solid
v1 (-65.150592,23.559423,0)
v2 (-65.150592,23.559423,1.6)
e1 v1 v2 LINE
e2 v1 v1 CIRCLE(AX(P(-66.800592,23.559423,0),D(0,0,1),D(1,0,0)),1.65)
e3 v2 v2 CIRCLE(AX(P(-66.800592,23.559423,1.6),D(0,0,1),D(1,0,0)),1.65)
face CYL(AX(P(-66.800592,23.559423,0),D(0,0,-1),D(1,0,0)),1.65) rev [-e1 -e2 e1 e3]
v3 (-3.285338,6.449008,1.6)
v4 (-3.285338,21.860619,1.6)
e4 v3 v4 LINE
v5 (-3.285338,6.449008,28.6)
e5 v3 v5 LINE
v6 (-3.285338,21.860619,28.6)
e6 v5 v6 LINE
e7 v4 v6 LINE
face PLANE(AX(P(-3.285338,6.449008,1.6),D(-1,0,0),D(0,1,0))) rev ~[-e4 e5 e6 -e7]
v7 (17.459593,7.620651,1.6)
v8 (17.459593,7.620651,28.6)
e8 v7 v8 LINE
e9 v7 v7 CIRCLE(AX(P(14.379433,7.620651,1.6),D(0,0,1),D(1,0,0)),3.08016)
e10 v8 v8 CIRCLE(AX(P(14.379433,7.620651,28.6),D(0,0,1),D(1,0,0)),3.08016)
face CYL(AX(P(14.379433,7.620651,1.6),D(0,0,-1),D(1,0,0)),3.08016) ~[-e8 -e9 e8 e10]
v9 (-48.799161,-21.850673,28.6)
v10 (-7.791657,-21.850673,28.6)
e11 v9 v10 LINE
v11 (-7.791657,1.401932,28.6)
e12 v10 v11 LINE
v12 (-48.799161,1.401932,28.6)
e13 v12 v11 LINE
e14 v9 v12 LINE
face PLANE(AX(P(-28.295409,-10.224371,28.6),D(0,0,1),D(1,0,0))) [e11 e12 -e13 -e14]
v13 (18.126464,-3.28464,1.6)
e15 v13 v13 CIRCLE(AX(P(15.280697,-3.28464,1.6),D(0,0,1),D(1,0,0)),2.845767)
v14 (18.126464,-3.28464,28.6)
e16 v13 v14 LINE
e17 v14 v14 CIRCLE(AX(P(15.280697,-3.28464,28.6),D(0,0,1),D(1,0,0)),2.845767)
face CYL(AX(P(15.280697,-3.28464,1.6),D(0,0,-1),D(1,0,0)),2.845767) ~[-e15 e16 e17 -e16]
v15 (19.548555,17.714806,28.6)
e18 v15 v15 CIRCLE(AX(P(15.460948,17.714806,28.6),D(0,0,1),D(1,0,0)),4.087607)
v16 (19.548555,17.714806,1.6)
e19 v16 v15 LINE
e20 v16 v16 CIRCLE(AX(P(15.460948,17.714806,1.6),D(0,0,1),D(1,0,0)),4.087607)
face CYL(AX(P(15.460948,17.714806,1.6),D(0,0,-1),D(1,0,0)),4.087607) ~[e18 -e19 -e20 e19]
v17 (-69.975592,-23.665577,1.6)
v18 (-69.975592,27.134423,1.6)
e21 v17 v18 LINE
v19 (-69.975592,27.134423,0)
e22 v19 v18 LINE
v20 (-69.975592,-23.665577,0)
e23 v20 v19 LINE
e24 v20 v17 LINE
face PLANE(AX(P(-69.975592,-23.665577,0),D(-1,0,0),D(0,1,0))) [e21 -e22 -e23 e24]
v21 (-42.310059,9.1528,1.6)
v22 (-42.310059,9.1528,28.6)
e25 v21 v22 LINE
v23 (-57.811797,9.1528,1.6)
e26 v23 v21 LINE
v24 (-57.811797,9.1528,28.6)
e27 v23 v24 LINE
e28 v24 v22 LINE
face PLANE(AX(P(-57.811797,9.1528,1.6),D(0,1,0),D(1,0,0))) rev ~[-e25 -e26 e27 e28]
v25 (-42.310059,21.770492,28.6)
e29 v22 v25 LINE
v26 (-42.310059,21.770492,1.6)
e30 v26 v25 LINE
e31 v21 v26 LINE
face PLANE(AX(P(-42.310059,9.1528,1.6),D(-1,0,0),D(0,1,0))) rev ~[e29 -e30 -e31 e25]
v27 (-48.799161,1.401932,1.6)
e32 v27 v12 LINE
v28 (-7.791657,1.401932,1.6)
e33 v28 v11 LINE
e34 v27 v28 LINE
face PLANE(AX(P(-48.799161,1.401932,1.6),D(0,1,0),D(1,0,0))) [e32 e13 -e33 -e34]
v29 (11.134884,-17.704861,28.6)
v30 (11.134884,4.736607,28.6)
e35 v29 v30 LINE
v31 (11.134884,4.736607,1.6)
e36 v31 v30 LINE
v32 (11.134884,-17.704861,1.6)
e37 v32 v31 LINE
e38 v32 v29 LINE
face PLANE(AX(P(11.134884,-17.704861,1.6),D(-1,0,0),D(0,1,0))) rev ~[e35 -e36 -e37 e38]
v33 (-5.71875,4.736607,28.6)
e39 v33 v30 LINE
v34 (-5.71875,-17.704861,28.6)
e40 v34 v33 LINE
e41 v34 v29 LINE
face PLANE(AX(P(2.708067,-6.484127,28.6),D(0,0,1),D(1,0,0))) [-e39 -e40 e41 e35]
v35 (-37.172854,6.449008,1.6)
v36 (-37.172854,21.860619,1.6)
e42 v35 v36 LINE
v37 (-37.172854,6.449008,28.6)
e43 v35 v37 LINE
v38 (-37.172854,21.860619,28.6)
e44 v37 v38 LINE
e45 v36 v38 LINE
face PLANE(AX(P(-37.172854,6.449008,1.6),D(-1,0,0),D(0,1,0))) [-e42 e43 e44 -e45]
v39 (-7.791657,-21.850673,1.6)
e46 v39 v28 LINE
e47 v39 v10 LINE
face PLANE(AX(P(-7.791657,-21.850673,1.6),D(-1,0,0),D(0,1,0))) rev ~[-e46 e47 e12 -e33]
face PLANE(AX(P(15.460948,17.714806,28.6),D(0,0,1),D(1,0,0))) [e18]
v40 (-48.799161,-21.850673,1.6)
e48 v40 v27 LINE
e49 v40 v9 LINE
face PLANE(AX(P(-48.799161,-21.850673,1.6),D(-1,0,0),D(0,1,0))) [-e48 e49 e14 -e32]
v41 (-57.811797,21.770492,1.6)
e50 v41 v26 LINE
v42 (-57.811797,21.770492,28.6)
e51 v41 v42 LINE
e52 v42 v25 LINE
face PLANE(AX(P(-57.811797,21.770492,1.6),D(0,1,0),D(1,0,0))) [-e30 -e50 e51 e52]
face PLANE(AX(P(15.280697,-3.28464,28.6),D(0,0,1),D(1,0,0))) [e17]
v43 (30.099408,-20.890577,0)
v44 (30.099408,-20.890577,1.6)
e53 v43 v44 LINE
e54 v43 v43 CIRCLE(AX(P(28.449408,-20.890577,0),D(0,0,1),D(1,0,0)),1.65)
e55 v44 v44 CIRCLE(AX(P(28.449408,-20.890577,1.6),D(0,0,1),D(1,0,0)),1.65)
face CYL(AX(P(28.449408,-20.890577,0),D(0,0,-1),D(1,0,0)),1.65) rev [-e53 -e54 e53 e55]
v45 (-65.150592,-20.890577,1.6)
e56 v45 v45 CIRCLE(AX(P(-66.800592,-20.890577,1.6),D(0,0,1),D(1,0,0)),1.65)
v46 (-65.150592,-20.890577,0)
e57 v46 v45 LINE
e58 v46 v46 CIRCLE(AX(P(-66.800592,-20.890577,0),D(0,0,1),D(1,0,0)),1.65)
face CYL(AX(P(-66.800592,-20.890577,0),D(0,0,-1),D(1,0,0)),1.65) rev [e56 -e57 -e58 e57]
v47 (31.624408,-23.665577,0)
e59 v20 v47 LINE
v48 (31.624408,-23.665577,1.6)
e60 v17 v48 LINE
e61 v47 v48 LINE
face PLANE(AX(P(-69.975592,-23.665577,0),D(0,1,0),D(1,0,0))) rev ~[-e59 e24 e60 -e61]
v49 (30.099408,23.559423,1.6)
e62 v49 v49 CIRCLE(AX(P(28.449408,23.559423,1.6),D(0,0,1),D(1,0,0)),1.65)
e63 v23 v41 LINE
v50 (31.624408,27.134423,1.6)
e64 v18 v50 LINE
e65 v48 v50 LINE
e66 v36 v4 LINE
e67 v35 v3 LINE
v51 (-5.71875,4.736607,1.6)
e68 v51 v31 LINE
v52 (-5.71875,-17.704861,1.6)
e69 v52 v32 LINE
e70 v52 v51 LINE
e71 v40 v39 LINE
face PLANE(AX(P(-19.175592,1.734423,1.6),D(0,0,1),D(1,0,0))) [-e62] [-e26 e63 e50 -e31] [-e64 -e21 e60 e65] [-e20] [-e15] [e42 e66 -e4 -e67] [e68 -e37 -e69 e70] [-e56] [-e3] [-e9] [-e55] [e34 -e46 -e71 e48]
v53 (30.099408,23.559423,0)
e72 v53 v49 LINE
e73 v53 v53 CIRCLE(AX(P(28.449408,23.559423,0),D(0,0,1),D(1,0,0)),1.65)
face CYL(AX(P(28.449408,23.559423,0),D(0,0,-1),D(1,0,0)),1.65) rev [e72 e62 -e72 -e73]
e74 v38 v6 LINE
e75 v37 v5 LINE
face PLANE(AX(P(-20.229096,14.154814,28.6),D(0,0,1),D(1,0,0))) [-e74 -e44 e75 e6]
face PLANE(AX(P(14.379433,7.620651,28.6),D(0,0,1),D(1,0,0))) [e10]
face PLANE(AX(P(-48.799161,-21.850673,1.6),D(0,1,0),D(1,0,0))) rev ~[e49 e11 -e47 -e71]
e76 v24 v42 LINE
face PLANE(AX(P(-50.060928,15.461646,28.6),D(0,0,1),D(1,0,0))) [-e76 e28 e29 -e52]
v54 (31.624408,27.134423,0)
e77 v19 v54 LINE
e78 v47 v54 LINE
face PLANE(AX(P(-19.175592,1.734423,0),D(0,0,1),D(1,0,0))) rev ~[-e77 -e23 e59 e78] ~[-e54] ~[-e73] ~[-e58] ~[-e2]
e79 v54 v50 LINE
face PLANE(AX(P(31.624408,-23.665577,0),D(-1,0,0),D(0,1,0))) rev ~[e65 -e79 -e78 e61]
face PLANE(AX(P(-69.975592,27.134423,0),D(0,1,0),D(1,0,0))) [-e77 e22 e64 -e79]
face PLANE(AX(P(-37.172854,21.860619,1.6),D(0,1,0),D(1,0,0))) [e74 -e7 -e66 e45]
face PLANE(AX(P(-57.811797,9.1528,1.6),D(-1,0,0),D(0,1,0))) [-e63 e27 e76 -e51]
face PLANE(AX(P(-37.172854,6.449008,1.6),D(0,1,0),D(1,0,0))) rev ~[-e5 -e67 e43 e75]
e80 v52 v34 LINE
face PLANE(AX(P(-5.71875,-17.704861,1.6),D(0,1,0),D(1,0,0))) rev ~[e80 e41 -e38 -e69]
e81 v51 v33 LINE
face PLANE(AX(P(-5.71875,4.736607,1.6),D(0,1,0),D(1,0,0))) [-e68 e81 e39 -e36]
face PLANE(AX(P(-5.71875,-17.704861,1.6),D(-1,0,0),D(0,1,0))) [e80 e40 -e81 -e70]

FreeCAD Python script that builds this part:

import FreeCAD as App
import Part
import Sketcher
from FreeCAD import Vector
Q = App.Units.Quantity

doc = App.newDocument("Part")
params = doc.addObject("Spreadsheet::Sheet", "Params")
for row, (alias, value) in enumerate([
    ("sketch1_diameter", "3.3 mm"),
    ("sketch1_width", "101.6 mm"),
    ("sketch1_height", "50.8 mm"),
    ("pad1_length", "1.6 mm"),
    ("pad2_length", "27 mm"),
], start=1):
    params.set(f"A{row}", alias)
    params.set(f"B{row}", "=" + value)
    params.setAlias(f"B{row}", alias)

body = doc.addObject("PartDesign::Body", "Body")

sketch1 = body.newObject("Sketcher::SketchObject", "Sketch")
sketch1.AttachmentSupport = (doc.getObject("XY_Plane"), [""])
sketch1.MapMode = "FlatFace"
sketch1.addGeometry([
    Part.LineSegment(Vector(-69.975592, 27.134423, 0), Vector(-69.975592, -23.665577, 0)),
    Part.LineSegment(Vector(-69.975592, -23.665577, 0), Vector(31.624408, -23.665577, 0)),
    Part.LineSegment(Vector(31.624408, -23.665577, 0), Vector(31.624408, 27.134423, 0)),
    Part.LineSegment(Vector(31.624408, 27.134423, 0), Vector(-69.975592, 27.134423, 0)),
    Part.Circle(Vector(-66.800592, -20.890577, 0), Vector(0, 0, 1), 1.65),
    Part.Circle(Vector(28.449408, -20.890577, 0), Vector(0, 0, 1), 1.65),
    Part.Circle(Vector(-66.800592, 23.559423, 0), Vector(0, 0, 1), 1.65),
    Part.Circle(Vector(28.449408, 23.559423, 0), Vector(0, 0, 1), 1.65),
], False)
sketch1.addConstraint([
    Sketcher.Constraint("Coincident", 0, 2, 1, 1),
    Sketcher.Constraint("Coincident", 1, 2, 2, 1),
    Sketcher.Constraint("Coincident", 2, 2, 3, 1),
    Sketcher.Constraint("Coincident", 3, 2, 0, 1),
    Sketcher.Constraint("Vertical", 0),
    Sketcher.Constraint("Horizontal", 1),
    Sketcher.Constraint("Vertical", 2),
    Sketcher.Constraint("Horizontal", 3),
    Sketcher.Constraint("Equal", 4, 5),
    Sketcher.Constraint("Equal", 5, 6),
    Sketcher.Constraint("Equal", 6, 7),
    Sketcher.Constraint("Horizontal", 4, 3, 5, 3),
    Sketcher.Constraint("Horizontal", 6, 3, 7, 3),
    Sketcher.Constraint("Vertical", 4, 3, 6, 3),
    Sketcher.Constraint("Vertical", 5, 3, 7, 3),
    Sketcher.Constraint("Diameter", 4, Q("3.3 mm")),
    Sketcher.Constraint("DistanceX", 1, 1, 1, 2, Q("101.6 mm")),
    Sketcher.Constraint("DistanceY", 0, 2, 0, 1, Q("50.8 mm")),
    Sketcher.Constraint("DistanceX", 4, 3, 5, 3, Q("95.25 mm")),
    Sketcher.Constraint("DistanceY", 4, 3, 6, 3, Q("44.45 mm")),
    Sketcher.Constraint("DistanceX", 0, 2, 4, 3, Q("3.175 mm")),
    Sketcher.Constraint("DistanceY", 0, 2, 4, 3, Q("2.775 mm")),
    Sketcher.Constraint("DistanceX", 4, 3, -1, 1, Q("66.800592 mm")),
    Sketcher.Constraint("DistanceY", 4, 3, -1, 1, Q("20.890577 mm")),
])
sketch1.setExpression("Constraints[15]", "Params.sketch1_diameter")
sketch1.setExpression("Constraints[16]", "Params.sketch1_width")
sketch1.setExpression("Constraints[17]", "Params.sketch1_height")
pad1 = body.newObject("PartDesign::Pad", "Pad")
pad1.Profile = sketch1
pad1.setExpression("Length", "Params.pad1_length")

sketch2 = body.newObject("Sketcher::SketchObject", "Sketch001")
sketch2.AttachmentSupport = (doc.getObject("XY_Plane"), [""])
sketch2.MapMode = "FlatFace"
sketch2.AttachmentOffset = App.Placement(Vector(0, 0, 1.6), App.Rotation())
sketch2.addGeometry([
    Part.LineSegment(Vector(-57.811797, 21.770492, 0), Vector(-57.811797, 9.1528, 0)),
    Part.LineSegment(Vector(-57.811797, 9.1528, 0), Vector(-42.310059, 9.1528, 0)),
    Part.LineSegment(Vector(-42.310059, 9.1528, 0), Vector(-42.310059, 21.770492, 0)),
    Part.LineSegment(Vector(-42.310059, 21.770492, 0), Vector(-57.811797, 21.770492, 0)),
    Part.LineSegment(Vector(-37.172854, 21.860619, 0), Vector(-37.172854, 6.449008, 0)),
    Part.LineSegment(Vector(-37.172854, 6.449008, 0), Vector(-3.285338, 6.449008, 0)),
    Part.LineSegment(Vector(-3.285338, 6.449008, 0), Vector(-3.285338, 21.860619, 0)),
    Part.LineSegment(Vector(-3.285338, 21.860619, 0), Vector(-37.172854, 21.860619, 0)),
    Part.LineSegment(Vector(-48.799161, 1.401932, 0), Vector(-48.799161, -21.850673, 0)),
    Part.LineSegment(Vector(-48.799161, -21.850673, 0), Vector(-7.791657, -21.850673, 0)),
    Part.LineSegment(Vector(-7.791657, -21.850673, 0), Vector(-7.791657, 1.401932, 0)),
    Part.LineSegment(Vector(-7.791657, 1.401932, 0), Vector(-48.799161, 1.401932, 0)),
    Part.LineSegment(Vector(-5.71875, 4.736607, 0), Vector(-5.71875, -17.704861, 0)),
    Part.LineSegment(Vector(-5.71875, -17.704861, 0), Vector(11.134884, -17.704861, 0)),
    Part.LineSegment(Vector(11.134884, -17.704861, 0), Vector(11.134884, 4.736607, 0)),
    Part.LineSegment(Vector(11.134884, 4.736607, 0), Vector(-5.71875, 4.736607, 0)),
    Part.Circle(Vector(15.460948, 17.714806, 0), Vector(0, 0, 1), 4.087607),
    Part.Circle(Vector(14.379433, 7.620651, 0), Vector(0, 0, 1), 3.08016),
    Part.Circle(Vector(15.280697, -3.28464, 0), Vector(0, 0, 1), 2.845767),
], False)
sketch2.addConstraint([
    Sketcher.Constraint("Coincident", 0, 2, 1, 1),
    Sketcher.Constraint("Coincident", 1, 2, 2, 1),
    Sketcher.Constraint("Coincident", 2, 2, 3, 1),
    Sketcher.Constraint("Coincident", 3, 2, 0, 1),
    Sketcher.Constraint("Coincident", 4, 2, 5, 1),
    Sketcher.Constraint("Coincident", 5, 2, 6, 1),
    Sketcher.Constraint("Coincident", 6, 2, 7, 1),
    Sketcher.Constraint("Coincident", 7, 2, 4, 1),
    Sketcher.Constraint("Coincident", 8, 2, 9, 1),
    Sketcher.Constraint("Coincident", 9, 2, 10, 1),
    Sketcher.Constraint("Coincident", 10, 2, 11, 1),
    Sketcher.Constraint("Coincident", 11, 2, 8, 1),
    Sketcher.Constraint("Coincident", 12, 2, 13, 1),
    Sketcher.Constraint("Coincident", 13, 2, 14, 1),
    Sketcher.Constraint("Coincident", 14, 2, 15, 1),
    Sketcher.Constraint("Coincident", 15, 2, 12, 1),
    Sketcher.Constraint("Vertical", 0),
    Sketcher.Constraint("Horizontal", 1),
    Sketcher.Constraint("Vertical", 2),
    Sketcher.Constraint("Horizontal", 3),
    Sketcher.Constraint("Vertical", 4),
    Sketcher.Constraint("Horizontal", 5),
    Sketcher.Constraint("Vertical", 6),
    Sketcher.Constraint("Horizontal", 7),
    Sketcher.Constraint("Vertical", 8),
    Sketcher.Constraint("Horizontal", 9),
    Sketcher.Constraint("Vertical", 10),
    Sketcher.Constraint("Horizontal", 11),
    Sketcher.Constraint("Vertical", 12),
    Sketcher.Constraint("Horizontal", 13),
    Sketcher.Constraint("Vertical", 14),
    Sketcher.Constraint("Horizontal", 15),
    Sketcher.Constraint("Diameter", 17, Q("6.16032 mm")),
    Sketcher.Constraint("Diameter", 16, Q("8.175214 mm")),
    Sketcher.Constraint("Diameter", 18, Q("5.691534 mm")),
    Sketcher.Constraint("DistanceY", 4, 2, 4, 1, Q("15.411611 mm")),
    Sketcher.Constraint("DistanceY", 12, 2, 12, 1, Q("22.441468 mm")),
    Sketcher.Constraint("DistanceY", -1, 1, 0, 2, Q("9.1528 mm")),
    Sketcher.Constraint("DistanceX", 8, 2, 1, 2, Q("6.489102 mm")),
    Sketcher.Constraint("DistanceY", 14, 2, 16, 3, Q("12.978199 mm")),
    Sketcher.Constraint("DistanceY", 14, 2, 5, 2, Q("1.712401 mm")),
    Sketcher.Constraint("DistanceX", 1, 1, 1, 2, Q("15.501738 mm")),
    Sketcher.Constraint("DistanceX", 5, 1, 5, 2, Q("33.887516 mm")),
    Sketcher.Constraint("DistanceX", 9, 1, 9, 2, Q("41.007504 mm")),
    Sketcher.Constraint("DistanceX", 13, 1, 13, 2, Q("16.853633 mm")),
    Sketcher.Constraint("DistanceY", 0, 2, 0, 1, Q("12.617692 mm")),
    Sketcher.Constraint("DistanceY", 8, 2, 8, 1, Q("23.252605 mm")),
    Sketcher.Constraint("DistanceY", -1, 1, 17, 3, Q("7.620651 mm")),
    Sketcher.Constraint("DistanceY", 18, 3, -1, 1, Q("3.28464 mm")),
    Sketcher.Constraint("DistanceX", 1, 2, -1, 1, Q("42.310059 mm")),
    Sketcher.Constraint("DistanceY", -1, 1, 4, 2, Q("6.449008 mm")),
    Sketcher.Constraint("DistanceY", -1, 1, 10, 2, Q("1.401932 mm")),
    Sketcher.Constraint("DistanceX", 12, 2, -1, 1, Q("5.71875 mm")),
    Sketcher.Constraint("DistanceX", 18, 3, 16, 3, Q("0.180251 mm")),
    Sketcher.Constraint("DistanceX", 0, 2, 17, 3, Q("72.19123 mm")),
    Sketcher.Constraint("DistanceX", 5, 2, 17, 3, Q("17.664771 mm")),
    Sketcher.Constraint("DistanceX", -1, 1, 16, 3, Q("15.460948 mm")),
])
pad2 = body.newObject("PartDesign::Pad", "Pad001")
pad2.Profile = sketch2
pad2.setExpression("Length", "Params.pad2_length")

doc.recompute()
